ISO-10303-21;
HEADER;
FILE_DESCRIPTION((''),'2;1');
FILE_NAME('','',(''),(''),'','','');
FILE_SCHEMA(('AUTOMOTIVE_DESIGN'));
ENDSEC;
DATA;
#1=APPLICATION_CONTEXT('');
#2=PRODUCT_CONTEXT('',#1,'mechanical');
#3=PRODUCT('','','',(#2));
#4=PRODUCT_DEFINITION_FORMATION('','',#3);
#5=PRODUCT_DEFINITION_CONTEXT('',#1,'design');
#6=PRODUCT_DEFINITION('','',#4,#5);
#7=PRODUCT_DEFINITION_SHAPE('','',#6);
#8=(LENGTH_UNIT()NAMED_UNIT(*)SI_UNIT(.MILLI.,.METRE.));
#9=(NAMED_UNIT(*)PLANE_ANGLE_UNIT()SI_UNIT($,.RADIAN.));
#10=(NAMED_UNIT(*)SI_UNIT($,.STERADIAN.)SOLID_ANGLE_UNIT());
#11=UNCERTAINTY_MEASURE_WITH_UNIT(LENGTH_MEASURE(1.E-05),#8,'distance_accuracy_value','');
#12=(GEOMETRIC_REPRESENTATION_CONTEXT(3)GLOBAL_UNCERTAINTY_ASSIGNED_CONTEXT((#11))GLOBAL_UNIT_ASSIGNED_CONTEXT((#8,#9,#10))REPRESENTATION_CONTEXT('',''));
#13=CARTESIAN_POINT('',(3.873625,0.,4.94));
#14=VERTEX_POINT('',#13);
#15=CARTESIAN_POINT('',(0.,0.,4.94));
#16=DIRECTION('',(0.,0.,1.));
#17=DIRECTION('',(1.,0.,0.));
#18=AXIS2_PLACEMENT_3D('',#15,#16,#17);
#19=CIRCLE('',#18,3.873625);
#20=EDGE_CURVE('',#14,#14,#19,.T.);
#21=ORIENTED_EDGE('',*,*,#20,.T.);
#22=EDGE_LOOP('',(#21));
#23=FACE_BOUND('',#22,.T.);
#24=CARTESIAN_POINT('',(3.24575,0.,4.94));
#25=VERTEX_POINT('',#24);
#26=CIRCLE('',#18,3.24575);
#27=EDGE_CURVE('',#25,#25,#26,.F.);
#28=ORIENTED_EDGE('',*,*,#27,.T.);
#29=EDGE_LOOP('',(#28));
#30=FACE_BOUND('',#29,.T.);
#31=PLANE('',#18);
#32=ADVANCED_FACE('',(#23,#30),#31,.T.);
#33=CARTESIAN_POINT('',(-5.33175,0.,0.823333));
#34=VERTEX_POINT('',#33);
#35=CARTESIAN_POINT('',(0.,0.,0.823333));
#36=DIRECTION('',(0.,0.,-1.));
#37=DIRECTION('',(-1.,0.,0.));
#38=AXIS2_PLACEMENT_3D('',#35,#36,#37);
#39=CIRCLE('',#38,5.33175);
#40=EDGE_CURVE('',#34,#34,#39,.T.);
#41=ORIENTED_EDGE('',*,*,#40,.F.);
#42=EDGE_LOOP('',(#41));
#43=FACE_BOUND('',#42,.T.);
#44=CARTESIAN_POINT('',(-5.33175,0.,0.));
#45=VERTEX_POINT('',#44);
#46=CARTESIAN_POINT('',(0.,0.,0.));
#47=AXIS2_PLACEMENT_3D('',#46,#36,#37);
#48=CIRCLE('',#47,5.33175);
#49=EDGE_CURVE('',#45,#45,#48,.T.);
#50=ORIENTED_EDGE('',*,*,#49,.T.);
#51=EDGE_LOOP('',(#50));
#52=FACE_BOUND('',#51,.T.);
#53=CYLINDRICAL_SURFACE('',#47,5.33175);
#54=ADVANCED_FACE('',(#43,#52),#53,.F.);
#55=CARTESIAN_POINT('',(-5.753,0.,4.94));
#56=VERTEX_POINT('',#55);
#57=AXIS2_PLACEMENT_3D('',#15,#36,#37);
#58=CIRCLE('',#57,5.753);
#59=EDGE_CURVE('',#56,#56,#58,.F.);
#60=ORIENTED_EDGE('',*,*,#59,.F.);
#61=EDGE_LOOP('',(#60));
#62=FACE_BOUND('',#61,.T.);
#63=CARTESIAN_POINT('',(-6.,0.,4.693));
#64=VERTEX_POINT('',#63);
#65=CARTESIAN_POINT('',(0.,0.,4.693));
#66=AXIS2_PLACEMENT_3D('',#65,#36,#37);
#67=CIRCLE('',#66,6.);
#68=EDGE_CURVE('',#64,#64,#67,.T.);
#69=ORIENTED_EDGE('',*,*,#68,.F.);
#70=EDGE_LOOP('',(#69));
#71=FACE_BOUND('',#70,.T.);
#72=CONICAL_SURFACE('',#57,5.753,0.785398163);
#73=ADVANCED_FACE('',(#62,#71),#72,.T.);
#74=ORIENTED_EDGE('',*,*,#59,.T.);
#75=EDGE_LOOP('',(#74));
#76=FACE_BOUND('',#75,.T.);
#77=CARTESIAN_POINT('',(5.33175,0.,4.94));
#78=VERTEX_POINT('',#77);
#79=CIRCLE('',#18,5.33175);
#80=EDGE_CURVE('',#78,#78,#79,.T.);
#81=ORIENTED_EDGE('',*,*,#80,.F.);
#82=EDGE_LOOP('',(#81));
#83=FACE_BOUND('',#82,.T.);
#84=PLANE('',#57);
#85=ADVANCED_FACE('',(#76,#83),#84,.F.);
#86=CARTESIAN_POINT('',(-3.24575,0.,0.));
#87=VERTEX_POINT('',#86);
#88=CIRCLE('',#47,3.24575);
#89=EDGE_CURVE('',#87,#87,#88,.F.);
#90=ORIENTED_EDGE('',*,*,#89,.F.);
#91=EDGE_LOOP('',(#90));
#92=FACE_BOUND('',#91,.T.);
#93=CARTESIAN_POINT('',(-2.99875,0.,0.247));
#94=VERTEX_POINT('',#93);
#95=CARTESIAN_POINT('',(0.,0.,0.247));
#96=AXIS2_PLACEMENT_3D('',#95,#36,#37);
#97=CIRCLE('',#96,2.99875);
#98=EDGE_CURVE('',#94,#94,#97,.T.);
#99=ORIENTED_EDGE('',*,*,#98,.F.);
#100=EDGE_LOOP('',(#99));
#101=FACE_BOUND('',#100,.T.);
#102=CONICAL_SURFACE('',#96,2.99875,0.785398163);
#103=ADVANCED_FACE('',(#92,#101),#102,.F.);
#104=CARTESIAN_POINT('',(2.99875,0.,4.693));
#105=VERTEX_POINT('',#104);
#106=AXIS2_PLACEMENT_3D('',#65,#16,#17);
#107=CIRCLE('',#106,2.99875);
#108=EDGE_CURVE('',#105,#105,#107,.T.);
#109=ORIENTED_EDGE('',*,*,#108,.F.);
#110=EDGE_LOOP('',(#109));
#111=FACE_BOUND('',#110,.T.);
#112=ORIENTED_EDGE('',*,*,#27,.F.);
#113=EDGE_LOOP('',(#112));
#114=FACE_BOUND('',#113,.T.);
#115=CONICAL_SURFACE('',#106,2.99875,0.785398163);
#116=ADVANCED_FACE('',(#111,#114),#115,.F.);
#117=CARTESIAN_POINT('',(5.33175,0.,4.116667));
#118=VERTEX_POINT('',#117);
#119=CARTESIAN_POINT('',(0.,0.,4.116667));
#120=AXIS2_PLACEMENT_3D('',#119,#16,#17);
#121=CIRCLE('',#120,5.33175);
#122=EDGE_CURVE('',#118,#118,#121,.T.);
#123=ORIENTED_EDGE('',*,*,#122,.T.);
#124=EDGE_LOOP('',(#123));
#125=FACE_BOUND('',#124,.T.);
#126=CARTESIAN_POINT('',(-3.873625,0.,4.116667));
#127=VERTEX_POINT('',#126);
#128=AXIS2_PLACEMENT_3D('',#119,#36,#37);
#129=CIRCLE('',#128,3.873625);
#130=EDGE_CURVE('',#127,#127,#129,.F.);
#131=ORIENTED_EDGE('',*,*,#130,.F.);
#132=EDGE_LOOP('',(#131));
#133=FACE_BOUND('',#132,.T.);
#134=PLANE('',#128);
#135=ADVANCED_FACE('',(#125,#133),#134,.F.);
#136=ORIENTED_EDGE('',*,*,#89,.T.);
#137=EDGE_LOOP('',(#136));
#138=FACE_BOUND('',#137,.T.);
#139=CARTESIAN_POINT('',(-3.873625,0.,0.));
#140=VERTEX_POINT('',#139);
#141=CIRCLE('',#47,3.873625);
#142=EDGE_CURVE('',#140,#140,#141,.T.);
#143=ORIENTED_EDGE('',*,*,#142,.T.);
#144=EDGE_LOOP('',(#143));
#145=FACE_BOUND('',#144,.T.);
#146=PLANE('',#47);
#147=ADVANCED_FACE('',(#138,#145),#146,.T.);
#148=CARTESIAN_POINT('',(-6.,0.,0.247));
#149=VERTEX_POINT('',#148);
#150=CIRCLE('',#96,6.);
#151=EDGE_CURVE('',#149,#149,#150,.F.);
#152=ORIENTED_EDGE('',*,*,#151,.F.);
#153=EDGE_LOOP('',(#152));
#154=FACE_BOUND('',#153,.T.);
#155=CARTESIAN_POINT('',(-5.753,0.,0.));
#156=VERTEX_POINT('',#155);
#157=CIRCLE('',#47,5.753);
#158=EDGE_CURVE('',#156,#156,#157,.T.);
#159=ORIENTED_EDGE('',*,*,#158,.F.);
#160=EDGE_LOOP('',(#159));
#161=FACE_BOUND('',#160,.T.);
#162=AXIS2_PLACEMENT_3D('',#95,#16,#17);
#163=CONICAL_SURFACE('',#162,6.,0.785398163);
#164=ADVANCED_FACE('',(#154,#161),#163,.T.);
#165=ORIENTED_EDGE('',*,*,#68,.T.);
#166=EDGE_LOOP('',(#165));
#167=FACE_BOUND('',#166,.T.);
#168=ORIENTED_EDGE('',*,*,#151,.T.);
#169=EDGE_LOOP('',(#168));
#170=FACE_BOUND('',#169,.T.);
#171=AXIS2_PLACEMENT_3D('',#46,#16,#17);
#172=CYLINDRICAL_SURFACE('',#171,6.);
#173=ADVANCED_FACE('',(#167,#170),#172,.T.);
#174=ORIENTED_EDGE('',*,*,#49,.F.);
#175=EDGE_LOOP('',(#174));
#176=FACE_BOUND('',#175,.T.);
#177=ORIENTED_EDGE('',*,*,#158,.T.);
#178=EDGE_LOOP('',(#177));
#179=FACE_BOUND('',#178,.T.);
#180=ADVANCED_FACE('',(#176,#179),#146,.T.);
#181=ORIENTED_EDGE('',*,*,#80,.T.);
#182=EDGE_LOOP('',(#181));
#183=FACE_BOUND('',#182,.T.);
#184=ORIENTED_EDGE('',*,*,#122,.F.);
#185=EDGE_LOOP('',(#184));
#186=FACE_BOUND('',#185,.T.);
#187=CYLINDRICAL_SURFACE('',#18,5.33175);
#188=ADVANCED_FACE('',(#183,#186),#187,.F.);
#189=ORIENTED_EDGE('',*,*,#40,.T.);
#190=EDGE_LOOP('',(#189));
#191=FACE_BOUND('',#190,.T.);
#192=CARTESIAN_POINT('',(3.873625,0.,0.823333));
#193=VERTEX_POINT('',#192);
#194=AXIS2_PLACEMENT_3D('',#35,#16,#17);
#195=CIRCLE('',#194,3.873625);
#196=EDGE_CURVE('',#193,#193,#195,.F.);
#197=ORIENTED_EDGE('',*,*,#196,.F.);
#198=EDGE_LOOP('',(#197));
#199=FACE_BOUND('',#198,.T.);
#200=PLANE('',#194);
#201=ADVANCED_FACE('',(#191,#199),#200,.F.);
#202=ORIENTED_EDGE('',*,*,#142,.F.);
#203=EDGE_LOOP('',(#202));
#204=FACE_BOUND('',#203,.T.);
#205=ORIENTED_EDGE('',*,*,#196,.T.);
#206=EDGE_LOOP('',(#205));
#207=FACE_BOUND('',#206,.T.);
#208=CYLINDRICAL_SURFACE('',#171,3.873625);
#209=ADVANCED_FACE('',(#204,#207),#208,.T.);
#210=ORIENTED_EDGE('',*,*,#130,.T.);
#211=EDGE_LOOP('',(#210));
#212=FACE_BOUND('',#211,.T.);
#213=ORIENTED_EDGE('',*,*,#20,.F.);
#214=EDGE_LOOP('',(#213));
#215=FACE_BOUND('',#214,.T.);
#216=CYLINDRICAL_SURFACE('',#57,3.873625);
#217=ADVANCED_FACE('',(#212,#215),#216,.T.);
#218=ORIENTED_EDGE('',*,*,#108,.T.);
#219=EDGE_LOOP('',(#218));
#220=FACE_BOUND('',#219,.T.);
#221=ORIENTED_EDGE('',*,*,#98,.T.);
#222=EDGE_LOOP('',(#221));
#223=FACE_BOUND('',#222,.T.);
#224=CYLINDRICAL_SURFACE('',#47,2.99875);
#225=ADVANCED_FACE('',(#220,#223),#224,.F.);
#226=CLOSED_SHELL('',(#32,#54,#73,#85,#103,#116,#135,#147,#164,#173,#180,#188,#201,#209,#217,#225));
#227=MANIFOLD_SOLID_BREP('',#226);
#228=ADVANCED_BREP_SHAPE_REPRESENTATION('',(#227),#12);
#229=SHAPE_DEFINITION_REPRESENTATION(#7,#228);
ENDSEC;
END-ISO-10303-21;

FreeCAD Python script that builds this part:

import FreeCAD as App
import Part
import Sketcher
from FreeCAD import Vector
Q = App.Units.Quantity


def edges_at(feature, points):
    """Names of the edges that pass closest to the given points."""
    edges = feature.Shape.Edges
    near = lambda p: min(range(len(edges)), key=lambda i: edges[i].distToShape(Part.Vertex(*p))[0])
    return sorted({f"Edge{near(p) + 1}" for p in points})

doc = App.newDocument("Part")
body = doc.addObject("PartDesign::Body", "Body")

sketch1 = body.newObject("Sketcher::SketchObject", "Sketch")
sketch1.AttachmentSupport = (doc.getObject("XY_Plane"), [""])
sketch1.MapMode = "FlatFace"
sketch1.AttachmentOffset = App.Placement(Vector(0, 0, 4.94), App.Rotation())
sketch1.addGeometry(Part.Circle(Vector(0, 0, 0), Vector(0, 0, 1), 6), False)
sketch1.addConstraint([
    Sketcher.Constraint("Coincident", 0, 3, -1, 1),
    Sketcher.Constraint("Diameter", 0, Q("12 mm")),
])
pad1 = body.newObject("PartDesign::Pad", "Pad")
pad1.Profile = sketch1
pad1.Length = 4.94
pad1.Reversed = True

sketch2 = body.newObject("Sketcher::SketchObject", "Sketch001")
sketch2.AttachmentSupport = (doc.getObject("XY_Plane"), [""])
sketch2.MapMode = "FlatFace"
sketch2.AttachmentOffset = App.Placement(Vector(0, 0, 4.94), App.Rotation())
sketch2.addGeometry(Part.Circle(Vector(0, 0, 0), Vector(0, 0, 1), 5.33175), False)
sketch2.addConstraint([
    Sketcher.Constraint("Coincident", 0, 3, -1, 1),
    Sketcher.Constraint("Diameter", 0, Q("10.6635 mm")),
])
doc.recompute()
hole = body.newObject("PartDesign::Hole", "Hole")
hole.Profile = sketch2
hole.ThreadType = "None"
hole.Diameter = 10.6635
hole.DepthType = "Dimension"
hole.Depth = 0.823333
hole.DrillPoint = "Flat"

sketch3 = body.newObject("Sketcher::SketchObject", "Sketch002")
sketch3.AttachmentSupport = (doc.getObject("XY_Plane"), [""])
sketch3.MapMode = "FlatFace"
sketch3.AttachmentOffset = App.Placement(Vector(0, 0, 4.116667), App.Rotation())
sketch3.addGeometry(Part.Circle(Vector(0, 0, 0), Vector(0, 0, 1), 3.873625), False)
sketch3.addConstraint([
    Sketcher.Constraint("Coincident", 0, 3, -1, 1),
    Sketcher.Constraint("Diameter", 0, Q("7.74725 mm")),
])
pad2 = body.newObject("PartDesign::Pad", "Pad001")
pad2.Profile = sketch3
pad2.Length = 0.823333

sketch4 = body.newObject("Sketcher::SketchObject", "Sketch003")
sketch4.AttachmentSupport = (doc.getObject("XY_Plane"), [""])
sketch4.MapMode = "FlatFace"
sketch4.addGeometry(Part.Circle(Vector(0, 0, 0), Vector(0, 0, 1), 5.33175), False)
sketch4.addConstraint([
    Sketcher.Constraint("Coincident", 0, 3, -1, 1),
    Sketcher.Constraint("Diameter", 0, Q("10.6635 mm")),
])
doc.recompute()
hole2 = body.newObject("PartDesign::Hole", "Hole001")
hole2.Profile = sketch4
hole2.ThreadType = "None"
hole2.Diameter = 10.6635
hole2.DepthType = "Dimension"
hole2.Depth = 0.823333
hole2.DrillPoint = "Flat"
hole2.Reversed = True

sketch5 = body.newObject("Sketcher::SketchObject", "Sketch004")
sketch5.AttachmentSupport = (doc.getObject("XY_Plane"), [""])
sketch5.MapMode = "FlatFace"
sketch5.AttachmentOffset = App.Placement(Vector(0, 0, 0.823333), App.Rotation())
sketch5.addGeometry(Part.Circle(Vector(0, 0, 0), Vector(0, 0, 1), 3.873625), False)
sketch5.addConstraint([
    Sketcher.Constraint("Coincident", 0, 3, -1, 1),
    Sketcher.Constraint("Diameter", 0, Q("7.74725 mm")),
])
pad3 = body.newObject("PartDesign::Pad", "Pad002")
pad3.Profile = sketch5
pad3.Length = 0.823333
pad3.Reversed = True

sketch6 = body.newObject("Sketcher::SketchObject", "Sketch005")
sketch6.AttachmentSupport = (doc.getObject("XY_Plane"), [""])
sketch6.MapMode = "FlatFace"
sketch6.addGeometry(Part.Circle(Vector(0, 0, 0), Vector(0, 0, 1), 2.99875), False)
sketch6.addConstraint([
    Sketcher.Constraint("Coincident", 0, 3, -1, 1),
    Sketcher.Constraint("Diameter", 0, Q("5.9975 mm")),
])
doc.recompute()
hole3 = body.newObject("PartDesign::Hole", "Hole002")
hole3.Profile = sketch6
hole3.ThreadType = "None"
hole3.Diameter = 5.9975
hole3.DepthType = "Dimension"
hole3.Depth = 4.94
hole3.DrillPoint = "Flat"
hole3.Reversed = True
doc.recompute()

chamfer = body.newObject("PartDesign::Chamfer", "Chamfer")
chamfer.Base = (hole3, edges_at(hole3, [
    (-6, 0, 4.94),
    (-2.999, 0, 0),
    (-2.999, 0, 4.94),
    (-6, 0, 0),
]))
chamfer.Size = 0.247

doc.recompute()
